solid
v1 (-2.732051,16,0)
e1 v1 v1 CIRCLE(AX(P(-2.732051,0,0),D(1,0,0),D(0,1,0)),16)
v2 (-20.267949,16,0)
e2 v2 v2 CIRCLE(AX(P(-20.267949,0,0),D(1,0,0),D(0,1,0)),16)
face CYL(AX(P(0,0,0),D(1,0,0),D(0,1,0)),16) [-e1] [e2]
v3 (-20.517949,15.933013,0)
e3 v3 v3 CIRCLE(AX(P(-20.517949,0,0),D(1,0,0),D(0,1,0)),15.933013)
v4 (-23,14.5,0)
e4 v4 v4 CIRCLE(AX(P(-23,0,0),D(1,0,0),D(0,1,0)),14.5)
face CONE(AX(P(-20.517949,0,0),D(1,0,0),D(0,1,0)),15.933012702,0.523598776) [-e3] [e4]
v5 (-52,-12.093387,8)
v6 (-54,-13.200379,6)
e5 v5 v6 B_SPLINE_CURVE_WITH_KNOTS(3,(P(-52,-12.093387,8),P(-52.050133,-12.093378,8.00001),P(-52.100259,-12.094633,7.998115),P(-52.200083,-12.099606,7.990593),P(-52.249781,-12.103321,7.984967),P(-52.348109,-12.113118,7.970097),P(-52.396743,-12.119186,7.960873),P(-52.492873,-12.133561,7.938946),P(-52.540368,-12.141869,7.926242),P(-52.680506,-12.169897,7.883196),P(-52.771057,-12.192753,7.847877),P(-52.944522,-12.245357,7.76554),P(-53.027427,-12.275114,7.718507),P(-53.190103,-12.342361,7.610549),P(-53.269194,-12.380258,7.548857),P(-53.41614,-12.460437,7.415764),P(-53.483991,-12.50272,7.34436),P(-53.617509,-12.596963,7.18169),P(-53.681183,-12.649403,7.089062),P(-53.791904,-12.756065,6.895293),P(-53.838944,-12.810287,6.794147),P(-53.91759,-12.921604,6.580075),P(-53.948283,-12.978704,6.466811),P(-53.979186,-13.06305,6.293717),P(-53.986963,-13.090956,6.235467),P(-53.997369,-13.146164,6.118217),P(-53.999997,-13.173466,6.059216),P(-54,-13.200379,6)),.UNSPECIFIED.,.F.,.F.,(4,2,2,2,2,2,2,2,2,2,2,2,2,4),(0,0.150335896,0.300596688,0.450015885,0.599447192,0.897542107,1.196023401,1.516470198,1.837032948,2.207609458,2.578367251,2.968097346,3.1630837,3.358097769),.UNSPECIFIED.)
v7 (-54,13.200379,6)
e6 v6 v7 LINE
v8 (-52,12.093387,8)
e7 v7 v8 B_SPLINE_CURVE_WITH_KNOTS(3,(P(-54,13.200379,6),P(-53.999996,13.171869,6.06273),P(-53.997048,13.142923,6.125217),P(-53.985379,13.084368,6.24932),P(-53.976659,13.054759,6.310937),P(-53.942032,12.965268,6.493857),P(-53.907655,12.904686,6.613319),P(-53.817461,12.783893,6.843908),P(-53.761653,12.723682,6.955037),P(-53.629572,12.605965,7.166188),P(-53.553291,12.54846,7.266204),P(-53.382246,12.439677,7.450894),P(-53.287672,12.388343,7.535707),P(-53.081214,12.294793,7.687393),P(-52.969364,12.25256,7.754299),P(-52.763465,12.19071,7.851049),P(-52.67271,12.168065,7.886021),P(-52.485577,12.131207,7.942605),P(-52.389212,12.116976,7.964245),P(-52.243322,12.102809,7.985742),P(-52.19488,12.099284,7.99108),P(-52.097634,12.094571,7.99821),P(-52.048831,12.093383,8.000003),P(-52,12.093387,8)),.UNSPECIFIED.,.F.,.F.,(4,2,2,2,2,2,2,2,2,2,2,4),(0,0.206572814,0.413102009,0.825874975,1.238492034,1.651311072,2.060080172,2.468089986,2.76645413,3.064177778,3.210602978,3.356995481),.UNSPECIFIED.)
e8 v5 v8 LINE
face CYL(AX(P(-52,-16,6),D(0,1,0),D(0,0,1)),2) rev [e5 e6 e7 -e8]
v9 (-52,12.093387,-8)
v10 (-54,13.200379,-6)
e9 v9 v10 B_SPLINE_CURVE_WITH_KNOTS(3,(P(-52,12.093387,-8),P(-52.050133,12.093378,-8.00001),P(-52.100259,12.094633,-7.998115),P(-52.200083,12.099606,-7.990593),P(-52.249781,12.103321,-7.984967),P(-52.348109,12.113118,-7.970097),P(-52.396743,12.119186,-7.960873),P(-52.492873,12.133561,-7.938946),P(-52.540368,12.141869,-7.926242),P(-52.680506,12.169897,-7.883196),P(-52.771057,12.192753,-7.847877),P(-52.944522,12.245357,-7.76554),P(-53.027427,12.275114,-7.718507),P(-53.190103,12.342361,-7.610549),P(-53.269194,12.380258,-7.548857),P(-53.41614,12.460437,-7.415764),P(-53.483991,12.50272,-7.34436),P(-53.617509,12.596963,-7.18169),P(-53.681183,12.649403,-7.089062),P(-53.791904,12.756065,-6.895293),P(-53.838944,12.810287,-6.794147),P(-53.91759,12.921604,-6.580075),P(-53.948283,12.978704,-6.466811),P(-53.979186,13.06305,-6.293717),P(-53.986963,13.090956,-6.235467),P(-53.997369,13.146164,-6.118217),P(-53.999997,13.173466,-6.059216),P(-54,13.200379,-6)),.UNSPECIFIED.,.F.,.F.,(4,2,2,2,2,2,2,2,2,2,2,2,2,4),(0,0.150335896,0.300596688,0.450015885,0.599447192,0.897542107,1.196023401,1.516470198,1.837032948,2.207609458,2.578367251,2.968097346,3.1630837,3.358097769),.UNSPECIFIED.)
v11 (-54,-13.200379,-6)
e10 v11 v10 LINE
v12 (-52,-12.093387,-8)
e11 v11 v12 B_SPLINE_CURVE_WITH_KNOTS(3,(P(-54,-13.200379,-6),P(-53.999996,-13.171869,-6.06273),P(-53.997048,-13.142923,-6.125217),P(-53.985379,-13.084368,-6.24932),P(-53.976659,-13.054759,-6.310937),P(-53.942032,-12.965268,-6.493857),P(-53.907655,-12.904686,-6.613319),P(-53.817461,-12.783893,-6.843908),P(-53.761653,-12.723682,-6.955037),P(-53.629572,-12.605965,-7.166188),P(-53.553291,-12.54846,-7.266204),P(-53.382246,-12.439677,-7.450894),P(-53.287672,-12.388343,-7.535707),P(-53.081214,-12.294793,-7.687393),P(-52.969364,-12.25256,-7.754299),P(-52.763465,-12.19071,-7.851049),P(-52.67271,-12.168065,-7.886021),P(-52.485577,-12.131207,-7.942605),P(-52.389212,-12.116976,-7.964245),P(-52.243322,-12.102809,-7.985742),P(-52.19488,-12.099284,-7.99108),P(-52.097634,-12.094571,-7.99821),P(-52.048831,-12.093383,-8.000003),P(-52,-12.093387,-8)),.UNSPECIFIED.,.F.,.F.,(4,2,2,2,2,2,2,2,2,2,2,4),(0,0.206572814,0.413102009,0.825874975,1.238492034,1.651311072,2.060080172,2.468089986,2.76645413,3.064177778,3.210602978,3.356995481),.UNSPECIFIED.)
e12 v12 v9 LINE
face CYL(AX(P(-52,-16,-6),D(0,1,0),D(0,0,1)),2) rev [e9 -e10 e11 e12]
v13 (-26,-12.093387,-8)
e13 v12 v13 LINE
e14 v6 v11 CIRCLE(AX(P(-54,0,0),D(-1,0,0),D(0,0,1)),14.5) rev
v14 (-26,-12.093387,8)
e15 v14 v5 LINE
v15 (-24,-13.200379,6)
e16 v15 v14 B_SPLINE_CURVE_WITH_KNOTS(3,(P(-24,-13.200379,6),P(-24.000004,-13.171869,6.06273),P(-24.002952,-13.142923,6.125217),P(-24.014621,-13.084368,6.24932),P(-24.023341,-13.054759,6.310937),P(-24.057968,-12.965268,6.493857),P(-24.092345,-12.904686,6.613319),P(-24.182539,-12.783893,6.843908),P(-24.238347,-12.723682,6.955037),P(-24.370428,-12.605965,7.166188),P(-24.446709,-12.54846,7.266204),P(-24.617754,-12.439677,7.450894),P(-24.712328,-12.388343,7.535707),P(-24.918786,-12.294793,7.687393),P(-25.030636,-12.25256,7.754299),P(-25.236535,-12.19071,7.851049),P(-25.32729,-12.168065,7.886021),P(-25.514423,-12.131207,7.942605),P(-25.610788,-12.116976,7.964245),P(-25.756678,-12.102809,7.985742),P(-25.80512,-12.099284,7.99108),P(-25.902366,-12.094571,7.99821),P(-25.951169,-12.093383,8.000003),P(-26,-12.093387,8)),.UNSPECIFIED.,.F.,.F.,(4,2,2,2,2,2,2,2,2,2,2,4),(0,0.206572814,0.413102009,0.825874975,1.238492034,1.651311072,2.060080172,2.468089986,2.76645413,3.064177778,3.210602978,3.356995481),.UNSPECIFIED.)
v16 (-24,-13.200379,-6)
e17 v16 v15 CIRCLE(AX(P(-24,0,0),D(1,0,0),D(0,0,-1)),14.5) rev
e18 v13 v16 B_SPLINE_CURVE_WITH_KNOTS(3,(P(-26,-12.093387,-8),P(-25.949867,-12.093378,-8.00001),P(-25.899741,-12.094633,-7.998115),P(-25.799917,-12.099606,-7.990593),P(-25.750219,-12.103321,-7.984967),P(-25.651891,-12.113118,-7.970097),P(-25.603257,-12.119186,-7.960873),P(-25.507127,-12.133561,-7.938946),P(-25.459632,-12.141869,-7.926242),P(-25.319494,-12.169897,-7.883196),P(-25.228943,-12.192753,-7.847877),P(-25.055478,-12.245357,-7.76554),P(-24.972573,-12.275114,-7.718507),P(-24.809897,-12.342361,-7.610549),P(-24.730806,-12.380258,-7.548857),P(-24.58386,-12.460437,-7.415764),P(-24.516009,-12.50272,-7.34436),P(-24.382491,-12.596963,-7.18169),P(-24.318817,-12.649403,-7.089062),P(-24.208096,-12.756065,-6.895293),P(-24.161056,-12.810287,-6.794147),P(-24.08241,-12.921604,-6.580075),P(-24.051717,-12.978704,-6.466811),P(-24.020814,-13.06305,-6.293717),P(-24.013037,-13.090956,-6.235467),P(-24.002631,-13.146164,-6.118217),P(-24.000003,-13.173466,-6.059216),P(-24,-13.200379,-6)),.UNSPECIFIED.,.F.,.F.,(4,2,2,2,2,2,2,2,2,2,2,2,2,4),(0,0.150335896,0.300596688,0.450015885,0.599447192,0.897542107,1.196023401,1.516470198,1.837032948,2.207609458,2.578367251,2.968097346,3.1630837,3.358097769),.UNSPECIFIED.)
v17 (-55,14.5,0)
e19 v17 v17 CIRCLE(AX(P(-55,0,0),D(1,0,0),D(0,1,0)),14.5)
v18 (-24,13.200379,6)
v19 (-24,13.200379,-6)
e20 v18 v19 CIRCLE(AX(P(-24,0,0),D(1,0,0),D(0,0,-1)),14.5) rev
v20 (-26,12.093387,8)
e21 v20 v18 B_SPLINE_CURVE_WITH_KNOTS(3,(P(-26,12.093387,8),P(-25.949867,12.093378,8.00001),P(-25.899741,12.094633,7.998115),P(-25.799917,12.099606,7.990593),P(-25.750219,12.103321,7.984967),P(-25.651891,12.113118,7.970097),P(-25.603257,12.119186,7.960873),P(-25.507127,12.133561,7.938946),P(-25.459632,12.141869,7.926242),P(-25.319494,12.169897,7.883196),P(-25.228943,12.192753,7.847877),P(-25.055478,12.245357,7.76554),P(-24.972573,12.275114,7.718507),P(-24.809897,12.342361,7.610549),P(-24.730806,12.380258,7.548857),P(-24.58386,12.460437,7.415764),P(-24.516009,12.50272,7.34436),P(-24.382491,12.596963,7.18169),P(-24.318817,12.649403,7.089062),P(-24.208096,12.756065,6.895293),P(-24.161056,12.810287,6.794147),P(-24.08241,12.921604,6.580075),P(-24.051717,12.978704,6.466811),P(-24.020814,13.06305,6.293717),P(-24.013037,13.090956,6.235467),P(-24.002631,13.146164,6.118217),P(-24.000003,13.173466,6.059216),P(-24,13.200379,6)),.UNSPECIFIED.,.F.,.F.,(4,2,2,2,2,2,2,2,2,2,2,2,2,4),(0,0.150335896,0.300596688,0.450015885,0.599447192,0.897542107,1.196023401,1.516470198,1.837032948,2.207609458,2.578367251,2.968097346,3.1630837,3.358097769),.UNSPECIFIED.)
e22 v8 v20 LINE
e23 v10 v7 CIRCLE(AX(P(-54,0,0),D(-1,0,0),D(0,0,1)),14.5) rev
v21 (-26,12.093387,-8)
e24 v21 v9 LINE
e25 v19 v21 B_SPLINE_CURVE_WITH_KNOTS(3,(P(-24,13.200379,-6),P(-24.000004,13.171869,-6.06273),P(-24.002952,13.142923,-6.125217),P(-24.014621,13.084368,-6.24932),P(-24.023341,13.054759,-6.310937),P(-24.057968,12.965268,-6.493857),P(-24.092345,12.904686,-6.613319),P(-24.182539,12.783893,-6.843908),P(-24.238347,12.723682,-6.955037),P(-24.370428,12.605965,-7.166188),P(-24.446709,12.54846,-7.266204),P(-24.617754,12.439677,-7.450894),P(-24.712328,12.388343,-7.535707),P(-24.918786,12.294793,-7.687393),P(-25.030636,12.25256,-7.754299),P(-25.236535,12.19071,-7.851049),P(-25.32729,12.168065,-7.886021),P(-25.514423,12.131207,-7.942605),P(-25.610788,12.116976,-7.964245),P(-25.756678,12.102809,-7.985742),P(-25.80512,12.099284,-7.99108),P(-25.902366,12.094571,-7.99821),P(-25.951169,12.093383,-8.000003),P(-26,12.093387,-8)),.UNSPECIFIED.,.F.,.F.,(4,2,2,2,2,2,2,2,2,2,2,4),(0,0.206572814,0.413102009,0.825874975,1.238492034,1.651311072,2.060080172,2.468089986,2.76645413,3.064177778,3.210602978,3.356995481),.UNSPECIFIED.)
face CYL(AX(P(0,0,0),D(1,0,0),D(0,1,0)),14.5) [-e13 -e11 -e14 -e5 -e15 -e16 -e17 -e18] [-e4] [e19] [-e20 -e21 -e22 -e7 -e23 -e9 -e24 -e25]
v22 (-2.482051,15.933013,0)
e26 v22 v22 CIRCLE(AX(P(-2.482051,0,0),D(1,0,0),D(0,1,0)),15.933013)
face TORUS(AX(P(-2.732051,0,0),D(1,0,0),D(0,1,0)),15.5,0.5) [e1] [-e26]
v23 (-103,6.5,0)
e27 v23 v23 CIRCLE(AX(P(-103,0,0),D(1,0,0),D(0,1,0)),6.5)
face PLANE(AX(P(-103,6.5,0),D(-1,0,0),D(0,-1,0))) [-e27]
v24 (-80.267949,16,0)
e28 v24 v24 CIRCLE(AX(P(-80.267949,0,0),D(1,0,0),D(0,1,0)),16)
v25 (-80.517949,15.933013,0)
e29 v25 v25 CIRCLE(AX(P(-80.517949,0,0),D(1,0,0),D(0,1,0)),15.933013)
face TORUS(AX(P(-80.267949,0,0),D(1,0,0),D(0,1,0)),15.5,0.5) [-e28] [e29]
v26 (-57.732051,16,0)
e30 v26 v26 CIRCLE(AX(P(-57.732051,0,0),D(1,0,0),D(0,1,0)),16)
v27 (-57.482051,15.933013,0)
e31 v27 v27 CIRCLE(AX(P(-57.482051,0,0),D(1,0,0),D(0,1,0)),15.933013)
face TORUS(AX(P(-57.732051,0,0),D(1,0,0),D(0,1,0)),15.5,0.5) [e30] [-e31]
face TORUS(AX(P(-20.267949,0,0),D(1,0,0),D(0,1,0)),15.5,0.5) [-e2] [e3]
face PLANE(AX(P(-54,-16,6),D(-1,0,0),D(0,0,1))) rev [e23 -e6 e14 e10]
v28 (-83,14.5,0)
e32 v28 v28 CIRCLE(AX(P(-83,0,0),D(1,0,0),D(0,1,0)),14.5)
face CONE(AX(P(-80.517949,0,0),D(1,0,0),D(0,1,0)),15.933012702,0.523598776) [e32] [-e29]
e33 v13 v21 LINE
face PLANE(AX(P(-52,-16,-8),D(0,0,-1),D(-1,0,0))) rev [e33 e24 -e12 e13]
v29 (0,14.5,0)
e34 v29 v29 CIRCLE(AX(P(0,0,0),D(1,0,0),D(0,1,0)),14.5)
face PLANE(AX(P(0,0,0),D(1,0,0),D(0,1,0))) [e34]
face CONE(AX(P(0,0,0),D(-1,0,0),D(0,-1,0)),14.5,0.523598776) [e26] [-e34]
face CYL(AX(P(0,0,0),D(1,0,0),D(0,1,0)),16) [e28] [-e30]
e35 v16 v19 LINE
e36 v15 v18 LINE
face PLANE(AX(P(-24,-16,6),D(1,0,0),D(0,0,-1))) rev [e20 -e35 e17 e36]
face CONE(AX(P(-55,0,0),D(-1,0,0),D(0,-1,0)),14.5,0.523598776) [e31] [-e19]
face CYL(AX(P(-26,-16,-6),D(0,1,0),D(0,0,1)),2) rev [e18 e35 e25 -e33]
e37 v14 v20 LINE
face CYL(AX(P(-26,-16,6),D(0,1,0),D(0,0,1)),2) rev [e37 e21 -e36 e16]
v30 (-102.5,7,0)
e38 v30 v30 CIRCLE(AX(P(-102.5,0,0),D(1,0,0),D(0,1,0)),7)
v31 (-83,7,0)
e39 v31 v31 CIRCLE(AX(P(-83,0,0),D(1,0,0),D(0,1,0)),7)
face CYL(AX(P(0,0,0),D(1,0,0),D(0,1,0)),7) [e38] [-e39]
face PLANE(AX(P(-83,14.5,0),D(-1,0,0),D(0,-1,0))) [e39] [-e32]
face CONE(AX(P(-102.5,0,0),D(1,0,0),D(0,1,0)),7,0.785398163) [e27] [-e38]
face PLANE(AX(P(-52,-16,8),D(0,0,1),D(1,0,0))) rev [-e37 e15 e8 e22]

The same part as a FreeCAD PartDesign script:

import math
import FreeCAD as App
import Part
import Sketcher
Q = App.Units.Quantity

doc = App.newDocument("Part")
body = doc.addObject("PartDesign::Body", "Body")

# Sketch on XY plane
sketch1 = body.newObject("Sketcher::SketchObject", "Sketch")
sketch1.AttachmentSupport = (doc.getObject("XY_Plane"), [""])
sketch1.MapMode = "FlatFace"
sketch1.addGeometry([
    Part.LineSegment(App.Vector(0, 0, 0), App.Vector(0, 14.5, 0)),  # 0
    Part.LineSegment(App.Vector(0, 14.5, 0), App.Vector(-2.48, 15.93, 0)),  # 1
    Part.ArcOfCircle(Part.Circle(App.Vector(-2.73, 15.5, 0), App.Vector(0, 0, 1), 0.5), math.radians(60), math.radians(90)),  # 2
    Part.LineSegment(App.Vector(-2.73, 16, 0), App.Vector(-20.27, 16, 0)),  # 3
    Part.ArcOfCircle(Part.Circle(App.Vector(-20.27, 15.5, 0), App.Vector(0, 0, 1), 0.5), math.radians(90), math.radians(120)),  # 4
    Part.LineSegment(App.Vector(-20.52, 15.93, 0), App.Vector(-23, 14.5, 0)),  # 5
    Part.LineSegment(App.Vector(-23, 14.5, 0), App.Vector(-55, 14.5, 0)),  # 6
    Part.LineSegment(App.Vector(-55, 14.5, 0), App.Vector(-57.48, 15.93, 0)),  # 7
    Part.ArcOfCircle(Part.Circle(App.Vector(-57.73, 15.5, 0), App.Vector(0, 0, 1), 0.5), math.radians(60), math.radians(90)),  # 8
    Part.LineSegment(App.Vector(-57.73, 16, 0), App.Vector(-80.27, 16, 0)),  # 9
    Part.ArcOfCircle(Part.Circle(App.Vector(-80.27, 15.5, 0), App.Vector(0, 0, 1), 0.5), math.radians(90), math.radians(120)),  # 10
    Part.LineSegment(App.Vector(-80.52, 15.93, 0), App.Vector(-83, 14.5, 0)),  # 11
    Part.LineSegment(App.Vector(-83, 14.5, 0), App.Vector(-83, 7, 0)),  # 12
    Part.LineSegment(App.Vector(-83, 7, 0), App.Vector(-102.5, 7, 0)),  # 13
    Part.LineSegment(App.Vector(-102.5, 7, 0), App.Vector(-103, 6.5, 0)),  # 14
    Part.LineSegment(App.Vector(-103, 6.5, 0), App.Vector(-103, 0, 0)),  # 15
    Part.LineSegment(App.Vector(-103, 0, 0), App.Vector(0, 0, 0)),  # 16
], False)
sketch1.addConstraint([
    Sketcher.Constraint("Coincident", 0, 2, 1, 1),
    Sketcher.Constraint("Tangent", 1, 2, 2, 1),
    Sketcher.Constraint("Tangent", 2, 2, 3, 1),
    Sketcher.Constraint("Tangent", 3, 2, 4, 1),
    Sketcher.Constraint("Tangent", 4, 2, 5, 1),
    Sketcher.Constraint("Coincident", 5, 2, 6, 1),
    Sketcher.Constraint("Coincident", 6, 2, 7, 1),
    Sketcher.Constraint("Tangent", 7, 2, 8, 1),
    Sketcher.Constraint("Tangent", 8, 2, 9, 1),
    Sketcher.Constraint("Tangent", 9, 2, 10, 1),
    Sketcher.Constraint("Tangent", 10, 2, 11, 1),
    Sketcher.Constraint("Coincident", 11, 2, 12, 1),
    Sketcher.Constraint("Coincident", 12, 2, 13, 1),
    Sketcher.Constraint("Coincident", 13, 2, 14, 1),
    Sketcher.Constraint("Coincident", 14, 2, 15, 1),
    Sketcher.Constraint("Coincident", 15, 2, 16, 1),
    Sketcher.Constraint("Coincident", 16, 2, 0, 1),
    Sketcher.Constraint("Vertical", 0),
    Sketcher.Constraint("Horizontal", 3),
    Sketcher.Constraint("Horizontal", 6),
    Sketcher.Constraint("Horizontal", 9),
    Sketcher.Constraint("Vertical", 12),
    Sketcher.Constraint("Horizontal", 13),
    Sketcher.Constraint("Vertical", 15),
    Sketcher.Constraint("Horizontal", 16),
    Sketcher.Constraint("Coincident", 16, 2, -1, 1),
    Sketcher.Constraint("Equal", 2, 4),
    Sketcher.Constraint("Equal", 4, 8),
    Sketcher.Constraint("Equal", 8, 10),
    Sketcher.Constraint("Parallel", 1, 7),
    Sketcher.Constraint("Parallel", 5, 11),
    Sketcher.Constraint("Horizontal", 4, 3, 8, 3),
    Sketcher.Constraint("Horizontal", 1, 2, 4, 2),
    Sketcher.Constraint("Horizontal", 0, 2, 5, 2),
    Sketcher.Constraint("Horizontal", 6, 2, 11, 2),
    Sketcher.Constraint("Radius", 2, Q("0.5 mm")),
    Sketcher.Constraint("DistanceX", 6, 2, 6, 1, Q("32 mm")),
    Sketcher.Constraint("DistanceX", 16, 1, 16, 2, Q("103 mm")),
    Sketcher.Constraint("Angle", 1, Q("150 deg")),
    Sketcher.Constraint("Angle", 14, Q("-135 deg")),
    Sketcher.Constraint("DistanceX", 13, 2, 13, 1, Q("19.5 mm")),
    Sketcher.Constraint("DistanceY", 0, 1, 0, 2, Q("14.5 mm")),
    Sketcher.Constraint("DistanceY", 12, 2, 12, 1, Q("7.5 mm")),
    Sketcher.Constraint("DistanceY", 15, 2, 15, 1, Q("6.5 mm")),
    Sketcher.Constraint("DistanceY", -1, 1, 2, 2, Q("16 mm")),
    Sketcher.Constraint("DistanceX", 5, 2, -1, 1, Q("23 mm")),
])
revolution = body.newObject("PartDesign::Revolution", "Revolution")
revolution.Profile = sketch1
revolution.ReferenceAxis = (sketch1, ["H_Axis"])
revolution.Angle = 360

# Sketch on XZ plane
sketch2 = body.newObject("Sketcher::SketchObject", "Sketch001")
sketch2.AttachmentSupport = (doc.getObject("XZ_Plane"), [""])
sketch2.MapMode = "FlatFace"
sketch2.addGeometry([
    Part.LineSegment(App.Vector(-52, 8, 0), App.Vector(-26, 8, 0)),  # 0
    Part.ArcOfCircle(Part.Circle(App.Vector(-26, 6, 0), App.Vector(0, 0, 1), 2), math.radians(0), math.radians(90)),  # 1
    Part.LineSegment(App.Vector(-24, 6, 0), App.Vector(-24, -6, 0)),  # 2
    Part.ArcOfCircle(Part.Circle(App.Vector(-26, -6, 0), App.Vector(0, 0, 1), 2), math.radians(-90), math.radians(0)),  # 3
    Part.LineSegment(App.Vector(-26, -8, 0), App.Vector(-52, -8, 0)),  # 4
    Part.ArcOfCircle(Part.Circle(App.Vector(-52, -6, 0), App.Vector(0, 0, 1), 2), math.radians(-180), math.radians(-90)),  # 5
    Part.LineSegment(App.Vector(-54, -6, 0), App.Vector(-54, 6, 0)),  # 6
    Part.ArcOfCircle(Part.Circle(App.Vector(-52, 6, 0), App.Vector(0, 0, 1), 2), math.radians(90), math.radians(180)),  # 7
], False)
sketch2.addConstraint([
    Sketcher.Constraint("Tangent", 0, 2, 1, 2),
    Sketcher.Constraint("Tangent", 1, 1, 2, 1),
    Sketcher.Constraint("Tangent", 2, 2, 3, 2),
    Sketcher.Constraint("Tangent", 3, 1, 4, 1),
    Sketcher.Constraint("Tangent", 4, 2, 5, 2),
    Sketcher.Constraint("Tangent", 5, 1, 6, 1),
    Sketcher.Constraint("Tangent", 6, 2, 7, 2),
    Sketcher.Constraint("Tangent", 7, 1, 0, 1),
    Sketcher.Constraint("Horizontal", 0),
    Sketcher.Constraint("Vertical", 2),
    Sketcher.Constraint("Horizontal", 4),
    Sketcher.Constraint("Vertical", 6),
    Sketcher.Constraint("Equal", 1, 3),
    Sketcher.Constraint("Equal", 3, 5),
    Sketcher.Constraint("Equal", 5, 7),
    Sketcher.Constraint("Radius", 1, Q("2 mm")),
    Sketcher.Constraint("DistanceX", 0, 1, 0, 2, Q("26 mm")),
    Sketcher.Constraint("DistanceY", 2, 2, 2, 1, Q("12 mm")),
    Sketcher.Constraint("DistanceX", 1, 3, -1, 1, Q("26 mm")),
    Sketcher.Constraint("DistanceY", -1, 1, 1, 3, Q("6 mm")),
])
pocket1 = body.newObject("PartDesign::Pocket", "Pocket")
pocket1.Profile = sketch2
pocket1.Type = "ThroughAll"
pocket1.Midplane = True

doc.recompute()
